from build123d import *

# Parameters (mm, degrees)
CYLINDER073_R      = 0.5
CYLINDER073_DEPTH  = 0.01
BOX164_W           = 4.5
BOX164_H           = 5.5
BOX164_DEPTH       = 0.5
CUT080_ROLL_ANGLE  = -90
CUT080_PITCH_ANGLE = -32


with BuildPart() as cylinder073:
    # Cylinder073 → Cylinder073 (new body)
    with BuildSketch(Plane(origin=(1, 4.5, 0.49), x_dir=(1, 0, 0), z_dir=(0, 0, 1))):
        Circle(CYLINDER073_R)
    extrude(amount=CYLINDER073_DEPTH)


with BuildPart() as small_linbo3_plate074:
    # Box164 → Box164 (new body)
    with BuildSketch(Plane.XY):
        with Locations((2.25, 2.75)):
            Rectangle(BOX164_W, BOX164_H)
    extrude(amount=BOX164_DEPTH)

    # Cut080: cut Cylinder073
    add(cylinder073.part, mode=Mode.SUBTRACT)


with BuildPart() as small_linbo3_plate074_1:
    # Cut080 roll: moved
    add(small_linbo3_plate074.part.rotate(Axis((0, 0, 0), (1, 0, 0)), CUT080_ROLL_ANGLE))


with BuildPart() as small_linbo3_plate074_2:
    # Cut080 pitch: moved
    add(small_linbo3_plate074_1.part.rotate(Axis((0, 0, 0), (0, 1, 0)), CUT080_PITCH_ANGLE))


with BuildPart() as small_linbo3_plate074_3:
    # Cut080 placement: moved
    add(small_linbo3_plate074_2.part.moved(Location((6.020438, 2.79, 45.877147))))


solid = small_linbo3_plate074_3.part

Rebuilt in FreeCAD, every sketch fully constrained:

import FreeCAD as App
import Part
import Sketcher

V = App.Vector


def add_polygon(sketch, points):
    """Adds a closed chain of lines whose ends are joined by coincident constraints."""
    first, n = sketch.GeometryCount, len(points)
    for a, b in zip(points, points[1:] + points[:1]):
        sketch.addGeometry(Part.LineSegment(App.Vector(*a, 0), App.Vector(*b, 0)), False)
    for i in range(n):
        sketch.addConstraint(Sketcher.Constraint("Coincident", first + i, 2, first + (i + 1) % n, 1))

doc = App.newDocument("Part")
body = doc.addObject("PartDesign::Body", "Body")

# Sketch on XY plane
sketch1 = body.newObject("Sketcher::SketchObject", "Sketch")
sketch1.AttachmentSupport = (doc.getObject("XY_Plane"), [""])
sketch1.MapMode = "FlatFace"
sketch1.AttachmentOffset = App.Placement(V(0, 0, 0.49), App.Rotation())
sketch1.addGeometry(Part.Circle(V(1, 4.5, 0), V(0, 0, 1), 0.5), False)
sketch1.addConstraint([
    Sketcher.Constraint("Diameter", 0, 1.0),
    Sketcher.Constraint("DistanceX", -1, 1, 0, 3, 1.0),
    Sketcher.Constraint("DistanceY", -1, 1, 0, 3, 4.5),
])
pad1 = body.newObject("PartDesign::Pad", "Pad")
pad1.Profile = sketch1
pad1.Length = 0.01
body2 = doc.addObject("PartDesign::Body", "Body001")

# Sketch on XY plane
sketch2 = body2.newObject("Sketcher::SketchObject", "Sketch001")
sketch2.AttachmentSupport = (doc.getObject("XY_Plane001"), [""])
sketch2.MapMode = "FlatFace"
add_polygon(sketch2, [(0, 5.5), (0, 0), (4.5, 0), (4.5, 5.5)])  # lines 0-3
sketch2.addConstraint([
    Sketcher.Constraint("Vertical", 0),
    Sketcher.Constraint("Horizontal", 1),
    Sketcher.Constraint("Vertical", 2),
    Sketcher.Constraint("Horizontal", 3),
    Sketcher.Constraint("Coincident", 0, 2, -1, 1),
    Sketcher.Constraint("DistanceX", 1, 1, 1, 2, 4.5),
    Sketcher.Constraint("DistanceY", 0, 2, 0, 1, 5.5),
])
pad2 = body2.newObject("PartDesign::Pad", "Pad001")
pad2.Profile = sketch2
pad2.Length = 0.5
doc.recompute()

boolean = body2.newObject("PartDesign::Boolean", "Boolean")
boolean.Type = "Cut"
boolean.addObjects([body])
body3 = doc.addObject("PartDesign::Body", "Body002")
doc.recompute()

body2.Placement = App.Placement(V(0, 0, 0), App.Rotation(V(1, 0, 0), 270))
boolean2 = body3.newObject("PartDesign::Boolean", "Boolean001")
boolean2.Type = "Fuse"
boolean2.addObjects([body2])
body4 = doc.addObject("PartDesign::Body", "Body003")
doc.recompute()

body3.Placement = App.Placement(V(0, 0, 0), App.Rotation(V(0, 1, 0), 328))
boolean3 = body4.newObject("PartDesign::Boolean", "Boolean002")
boolean3.Type = "Fuse"
boolean3.addObjects([body3])
body5 = doc.addObject("PartDesign::Body", "Body004")
doc.recompute()

body4.Placement = App.Placement(V(6.020438, 2.79, 45.877147), App.Rotation(V(0, 0, 1), 0))
boolean4 = body5.newObject("PartDesign::Boolean", "Boolean003")
boolean4.Type = "Fuse"
boolean4.addObjects([body4])

doc.recompute()
